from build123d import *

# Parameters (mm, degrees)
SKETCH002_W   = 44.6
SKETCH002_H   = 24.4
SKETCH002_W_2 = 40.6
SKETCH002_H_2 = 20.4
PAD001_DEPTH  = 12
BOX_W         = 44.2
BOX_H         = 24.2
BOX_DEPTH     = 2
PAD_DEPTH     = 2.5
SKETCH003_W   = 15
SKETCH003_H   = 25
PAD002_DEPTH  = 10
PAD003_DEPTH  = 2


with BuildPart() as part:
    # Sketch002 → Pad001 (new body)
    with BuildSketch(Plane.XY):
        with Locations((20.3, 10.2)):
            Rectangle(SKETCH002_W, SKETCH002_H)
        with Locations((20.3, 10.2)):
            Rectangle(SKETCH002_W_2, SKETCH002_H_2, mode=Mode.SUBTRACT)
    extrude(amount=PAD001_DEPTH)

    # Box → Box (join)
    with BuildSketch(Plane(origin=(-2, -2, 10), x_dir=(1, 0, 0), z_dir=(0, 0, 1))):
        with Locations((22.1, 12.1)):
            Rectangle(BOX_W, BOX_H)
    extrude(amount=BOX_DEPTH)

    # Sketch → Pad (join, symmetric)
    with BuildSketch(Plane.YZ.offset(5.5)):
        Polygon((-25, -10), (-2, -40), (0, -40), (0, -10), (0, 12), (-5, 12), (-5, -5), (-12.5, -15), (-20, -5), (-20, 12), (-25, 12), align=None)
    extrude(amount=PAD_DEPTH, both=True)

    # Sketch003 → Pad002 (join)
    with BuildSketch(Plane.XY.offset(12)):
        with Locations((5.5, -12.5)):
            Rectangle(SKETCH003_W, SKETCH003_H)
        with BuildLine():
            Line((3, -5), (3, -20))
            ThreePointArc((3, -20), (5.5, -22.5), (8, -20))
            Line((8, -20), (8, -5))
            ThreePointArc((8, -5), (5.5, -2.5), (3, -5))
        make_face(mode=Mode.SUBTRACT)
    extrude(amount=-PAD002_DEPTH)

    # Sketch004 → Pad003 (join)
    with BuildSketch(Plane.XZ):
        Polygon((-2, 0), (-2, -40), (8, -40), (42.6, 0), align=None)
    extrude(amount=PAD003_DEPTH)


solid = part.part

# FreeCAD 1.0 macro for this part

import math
import FreeCAD as App
import Part
import Sketcher

doc = App.newDocument("Part")
body = doc.addObject("PartDesign::Body", "Body")

sketch1 = body.newObject("Sketcher::SketchObject", "Sketch")
sketch1.AttachmentSupport = (doc.getObject("XY_Plane"), [""])
sketch1.MapMode = "FlatFace"
sketch1.addGeometry(Part.LineSegment(App.Vector(-2, 22.4, 0), App.Vector(-2, -2, 0)), False)
sketch1.addGeometry(Part.LineSegment(App.Vector(-2, -2, 0), App.Vector(42.6, -2, 0)), False)
sketch1.addGeometry(Part.LineSegment(App.Vector(42.6, -2, 0), App.Vector(42.6, 22.4, 0)), False)
sketch1.addGeometry(Part.LineSegment(App.Vector(42.6, 22.4, 0), App.Vector(-2, 22.4, 0)), False)
sketch1.addGeometry(Part.LineSegment(App.Vector(40.6, 0, 0), App.Vector(0, 0, 0)), False)
sketch1.addGeometry(Part.LineSegment(App.Vector(0, 0, 0), App.Vector(0, 20.4, 0)), False)
sketch1.addGeometry(Part.LineSegment(App.Vector(0, 20.4, 0), App.Vector(40.6, 20.4, 0)), False)
sketch1.addGeometry(Part.LineSegment(App.Vector(40.6, 20.4, 0), App.Vector(40.6, 0, 0)), False)
sketch1.addConstraint(Sketcher.Constraint("Coincident", 0, 2, 1, 1))
sketch1.addConstraint(Sketcher.Constraint("Coincident", 1, 2, 2, 1))
sketch1.addConstraint(Sketcher.Constraint("Coincident", 2, 2, 3, 1))
sketch1.addConstraint(Sketcher.Constraint("Coincident", 3, 2, 0, 1))
sketch1.addConstraint(Sketcher.Constraint("Coincident", 4, 2, 5, 1))
sketch1.addConstraint(Sketcher.Constraint("Coincident", 5, 2, 6, 1))
sketch1.addConstraint(Sketcher.Constraint("Coincident", 6, 2, 7, 1))
sketch1.addConstraint(Sketcher.Constraint("Coincident", 7, 2, 4, 1))
sketch1.addConstraint(Sketcher.Constraint("Vertical", 0))
sketch1.addConstraint(Sketcher.Constraint("Horizontal", 1))
sketch1.addConstraint(Sketcher.Constraint("Vertical", 2))
sketch1.addConstraint(Sketcher.Constraint("Horizontal", 3))
sketch1.addConstraint(Sketcher.Constraint("Horizontal", 4))
sketch1.addConstraint(Sketcher.Constraint("Vertical", 5))
sketch1.addConstraint(Sketcher.Constraint("Horizontal", 6))
sketch1.addConstraint(Sketcher.Constraint("Vertical", 7))
sketch1.addConstraint(Sketcher.Constraint("Coincident", 4, 2, -1, 1))
sketch1.addConstraint(Sketcher.Constraint("DistanceX", 1, 1, 1, 2, 44.6))
sketch1.addConstraint(Sketcher.Constraint("DistanceX", 4, 2, 4, 1, 40.6))
sketch1.addConstraint(Sketcher.Constraint("DistanceY", 0, 2, 0, 1, 24.4))
sketch1.addConstraint(Sketcher.Constraint("DistanceY", 5, 1, 5, 2, 20.4))
sketch1.addConstraint(Sketcher.Constraint("DistanceX", 0, 2, -1, 1, 2.0))
sketch1.addConstraint(Sketcher.Constraint("DistanceY", 0, 2, -1, 1, 2.0))
pad1 = body.newObject("PartDesign::Pad", "Pad")
pad1.Profile = sketch1
pad1.Length = 12

sketch2 = body.newObject("Sketcher::SketchObject", "Sketch001")
sketch2.AttachmentSupport = (doc.getObject("XY_Plane"), [""])
sketch2.MapMode = "FlatFace"
sketch2.AttachmentOffset = App.Placement(App.Vector(0, 0, 10), App.Rotation())
sketch2.addGeometry(Part.LineSegment(App.Vector(-2, 22.2, 0), App.Vector(-2, -2, 0)), False)
sketch2.addGeometry(Part.LineSegment(App.Vector(-2, -2, 0), App.Vector(42.2, -2, 0)), False)
sketch2.addGeometry(Part.LineSegment(App.Vector(42.2, -2, 0), App.Vector(42.2, 22.2, 0)), False)
sketch2.addGeometry(Part.LineSegment(App.Vector(42.2, 22.2, 0), App.Vector(-2, 22.2, 0)), False)
sketch2.addConstraint(Sketcher.Constraint("Coincident", 0, 2, 1, 1))
sketch2.addConstraint(Sketcher.Constraint("Coincident", 1, 2, 2, 1))
sketch2.addConstraint(Sketcher.Constraint("Coincident", 2, 2, 3, 1))
sketch2.addConstraint(Sketcher.Constraint("Coincident", 3, 2, 0, 1))
sketch2.addConstraint(Sketcher.Constraint("Vertical", 0))
sketch2.addConstraint(Sketcher.Constraint("Horizontal", 1))
sketch2.addConstraint(Sketcher.Constraint("Vertical", 2))
sketch2.addConstraint(Sketcher.Constraint("Horizontal", 3))
sketch2.addConstraint(Sketcher.Constraint("DistanceX", 1, 1, 1, 2, 44.2))
sketch2.addConstraint(Sketcher.Constraint("DistanceY", 0, 2, 0, 1, 24.2))
sketch2.addConstraint(Sketcher.Constraint("DistanceX", 0, 2, -1, 1, 2.0))
sketch2.addConstraint(Sketcher.Constraint("DistanceY", 0, 2, -1, 1, 2.0))
pad2 = body.newObject("PartDesign::Pad", "Pad001")
pad2.Profile = sketch2
pad2.Length = 2

sketch3 = body.newObject("Sketcher::SketchObject", "Sketch002")
sketch3.AttachmentSupport = (doc.getObject("YZ_Plane"), [""])
sketch3.MapMode = "FlatFace"
sketch3.AttachmentOffset = App.Placement(App.Vector(0, 0, 5.5), App.Rotation())
sketch3.addGeometry(Part.LineSegment(App.Vector(-25, -10, 0), App.Vector(-2, -40, 0)), False)
sketch3.addGeometry(Part.LineSegment(App.Vector(-2, -40, 0), App.Vector(0, -40, 0)), False)
sketch3.addGeometry(Part.LineSegment(App.Vector(0, -40, 0), App.Vector(0, 12, 0)), False)
sketch3.addGeometry(Part.LineSegment(App.Vector(0, 12, 0), App.Vector(-5, 12, 0)), False)
sketch3.addGeometry(Part.LineSegment(App.Vector(-5, 12, 0), App.Vector(-5, -5, 0)), False)
sketch3.addGeometry(Part.LineSegment(App.Vector(-5, -5, 0), App.Vector(-12.5, -15, 0)), False)
sketch3.addGeometry(Part.LineSegment(App.Vector(-12.5, -15, 0), App.Vector(-20, -5, 0)), False)
sketch3.addGeometry(Part.LineSegment(App.Vector(-20, -5, 0), App.Vector(-20, 12, 0)), False)
sketch3.addGeometry(Part.LineSegment(App.Vector(-20, 12, 0), App.Vector(-25, 12, 0)), False)
sketch3.addGeometry(Part.LineSegment(App.Vector(-25, 12, 0), App.Vector(-25, -10, 0)), False)
sketch3.addConstraint(Sketcher.Constraint("Coincident", 0, 2, 1, 1))
sketch3.addConstraint(Sketcher.Constraint("Coincident", 1, 2, 2, 1))
sketch3.addConstraint(Sketcher.Constraint("Coincident", 2, 2, 3, 1))
sketch3.addConstraint(Sketcher.Constraint("Coincident", 3, 2, 4, 1))
sketch3.addConstraint(Sketcher.Constraint("Coincident", 4, 2, 5, 1))
sketch3.addConstraint(Sketcher.Constraint("Coincident", 5, 2, 6, 1))
sketch3.addConstraint(Sketcher.Constraint("Coincident", 6, 2, 7, 1))
sketch3.addConstraint(Sketcher.Constraint("Coincident", 7, 2, 8, 1))
sketch3.addConstraint(Sketcher.Constraint("Coincident", 8, 2, 9, 1))
sketch3.addConstraint(Sketcher.Constraint("Coincident", 9, 2, 0, 1))
sketch3.addConstraint(Sketcher.Constraint("Horizontal", 1))
sketch3.addConstraint(Sketcher.Constraint("Vertical", 2))
sketch3.addConstraint(Sketcher.Constraint("Horizontal", 3))
sketch3.addConstraint(Sketcher.Constraint("Vertical", 4))
sketch3.addConstraint(Sketcher.Constraint("Vertical", 7))
sketch3.addConstraint(Sketcher.Constraint("Horizontal", 8))
sketch3.addConstraint(Sketcher.Constraint("Vertical", 9))
sketch3.addConstraint(Sketcher.Constraint("PointOnObject", 1, 2, -2))
sketch3.addConstraint(Sketcher.Constraint("Horizontal", 4, 2, 6, 2))
sketch3.addConstraint(Sketcher.Constraint("Horizontal", 3, 2, 7, 2))
sketch3.addConstraint(Sketcher.Constraint("Equal", 3, 8))
sketch3.addConstraint(Sketcher.Constraint("Equal", 5, 6))
sketch3.addConstraint(Sketcher.Constraint("DistanceX", 1, 1, 1, 2, 2.0))
sketch3.addConstraint(Sketcher.Constraint("DistanceX", 3, 2, 3, 1, 5.0))
sketch3.addConstraint(Sketcher.Constraint("DistanceY", 2, 1, 2, 2, 52.0))
sketch3.addConstraint(Sketcher.Constraint("DistanceY", 4, 2, 4, 1, 17.0))
sketch3.addConstraint(Sketcher.Constraint("DistanceY", 9, 2, 9, 1, 22.0))
sketch3.addConstraint(Sketcher.Constraint("DistanceY", 0, 2, -1, 1, 40.0))
sketch3.addConstraint(Sketcher.Constraint("DistanceY", 5, 2, -1, 1, 15.0))
sketch3.addConstraint(Sketcher.Constraint("DistanceX", 6, 2, -1, 1, 20.0))
pad3 = body.newObject("PartDesign::Pad", "Pad002")
pad3.Profile = sketch3
pad3.Length = 5
pad3.Midplane = True

sketch4 = body.newObject("Sketcher::SketchObject", "Sketch003")
sketch4.AttachmentSupport = (doc.getObject("XY_Plane"), [""])
sketch4.MapMode = "FlatFace"
sketch4.AttachmentOffset = App.Placement(App.Vector(0, 0, 12), App.Rotation())
sketch4.addGeometry(Part.LineSegment(App.Vector(-2, 0, 0), App.Vector(-2, -25, 0)), False)
sketch4.addGeometry(Part.LineSegment(App.Vector(-2, -25, 0), App.Vector(13, -25, 0)), False)
sketch4.addGeometry(Part.LineSegment(App.Vector(13, -25, 0), App.Vector(13, 0, 0)), False)
sketch4.addGeometry(Part.LineSegment(App.Vector(13, 0, 0), App.Vector(-2, 0, 0)), False)
sketch4.addGeometry(Part.LineSegment(App.Vector(3, -20, 0), App.Vector(3, -5, 0)), False)
sketch4.addGeometry(Part.ArcOfCircle(Part.Circle(App.Vector(5.5, -5, 0), App.Vector(0, 0, 1), 2.5), math.radians(0), math.radians(180)), False)
sketch4.addGeometry(Part.LineSegment(App.Vector(8, -5, 0), App.Vector(8, -20, 0)), False)
sketch4.addGeometry(Part.ArcOfCircle(Part.Circle(App.Vector(5.5, -20, 0), App.Vector(0, 0, 1), 2.5), math.radians(180), math.radians(360)), False)
sketch4.addConstraint(Sketcher.Constraint("Coincident", 0, 2, 1, 1))
sketch4.addConstraint(Sketcher.Constraint("Coincident", 1, 2, 2, 1))
sketch4.addConstraint(Sketcher.Constraint("Coincident", 2, 2, 3, 1))
sketch4.addConstraint(Sketcher.Constraint("Coincident", 3, 2, 0, 1))
sketch4.addConstraint(Sketcher.Constraint("Tangent", 4, 2, 5, 2))
sketch4.addConstraint(Sketcher.Constraint("Tangent", 5, 1, 6, 1))
sketch4.addConstraint(Sketcher.Constraint("Tangent", 6, 2, 7, 2))
sketch4.addConstraint(Sketcher.Constraint("Tangent", 7, 1, 4, 1))
sketch4.addConstraint(Sketcher.Constraint("Vertical", 0))
sketch4.addConstraint(Sketcher.Constraint("Horizontal", 1))
sketch4.addConstraint(Sketcher.Constraint("Vertical", 2))
sketch4.addConstraint(Sketcher.Constraint("Horizontal", 3))
sketch4.addConstraint(Sketcher.Constraint("Vertical", 4))
sketch4.addConstraint(Sketcher.Constraint("Vertical", 6))
sketch4.addConstraint(Sketcher.Constraint("PointOnObject", 2, 2, -1))
sketch4.addConstraint(Sketcher.Constraint("Equal", 3, 4))
sketch4.addConstraint(Sketcher.Constraint("Radius", 5, 2.5))
sketch4.addConstraint(Sketcher.Constraint("DistanceX", 1, 1, 1, 2, 15.0))
sketch4.addConstraint(Sketcher.Constraint("DistanceY", 0, 2, 0, 1, 25.0))
sketch4.addConstraint(Sketcher.Constraint("DistanceY", 5, 3, -1, 1, 5.0))
sketch4.addConstraint(Sketcher.Constraint("DistanceX", 0, 2, -1, 1, 2.0))
sketch4.addConstraint(Sketcher.Constraint("DistanceX", -1, 1, 4, 2, 3.0))
pad4 = body.newObject("PartDesign::Pad", "Pad003")
pad4.Profile = sketch4
pad4.Length = 10
pad4.Reversed = True

sketch5 = body.newObject("Sketcher::SketchObject", "Sketch004")
sketch5.AttachmentSupport = (doc.getObject("XZ_Plane"), [""])
sketch5.MapMode = "FlatFace"
sketch5.addGeometry(Part.LineSegment(App.Vector(-2, 0, 0), App.Vector(-2, -40, 0)), False)
sketch5.addGeometry(Part.LineSegment(App.Vector(-2, -40, 0), App.Vector(8, -40, 0)), False)
sketch5.addGeometry(Part.LineSegment(App.Vector(8, -40, 0), App.Vector(42.6, 0, 0)), False)
sketch5.addGeometry(Part.LineSegment(App.Vector(42.6, 0, 0), App.Vector(-2, 0, 0)), False)
sketch5.addConstraint(Sketcher.Constraint("Coincident", 0, 2, 1, 1))
sketch5.addConstraint(Sketcher.Constraint("Coincident", 1, 2, 2, 1))
sketch5.addConstraint(Sketcher.Constraint("Coincident", 2, 2, 3, 1))
sketch5.addConstraint(Sketcher.Constraint("Coincident", 3, 2, 0, 1))
sketch5.addConstraint(Sketcher.Constraint("Vertical", 0))
sketch5.addConstraint(Sketcher.Constraint("Horizontal", 1))
sketch5.addConstraint(Sketcher.Constraint("Horizontal", 3))
sketch5.addConstraint(Sketcher.Constraint("PointOnObject", 2, 2, -1))
sketch5.addConstraint(Sketcher.Constraint("DistanceX", 1, 1, 1, 2, 10.0))
sketch5.addConstraint(Sketcher.Constraint("DistanceY", 0, 2, 0, 1, 40.0))
sketch5.addConstraint(Sketcher.Constraint("DistanceX", 3, 2, 3, 1, 44.6))
sketch5.addConstraint(Sketcher.Constraint("DistanceX", 0, 2, -1, 1, 2.0))
pad5 = body.newObject("PartDesign::Pad", "Pad004")
pad5.Profile = sketch5
pad5.Length = 2

doc.recompute()
